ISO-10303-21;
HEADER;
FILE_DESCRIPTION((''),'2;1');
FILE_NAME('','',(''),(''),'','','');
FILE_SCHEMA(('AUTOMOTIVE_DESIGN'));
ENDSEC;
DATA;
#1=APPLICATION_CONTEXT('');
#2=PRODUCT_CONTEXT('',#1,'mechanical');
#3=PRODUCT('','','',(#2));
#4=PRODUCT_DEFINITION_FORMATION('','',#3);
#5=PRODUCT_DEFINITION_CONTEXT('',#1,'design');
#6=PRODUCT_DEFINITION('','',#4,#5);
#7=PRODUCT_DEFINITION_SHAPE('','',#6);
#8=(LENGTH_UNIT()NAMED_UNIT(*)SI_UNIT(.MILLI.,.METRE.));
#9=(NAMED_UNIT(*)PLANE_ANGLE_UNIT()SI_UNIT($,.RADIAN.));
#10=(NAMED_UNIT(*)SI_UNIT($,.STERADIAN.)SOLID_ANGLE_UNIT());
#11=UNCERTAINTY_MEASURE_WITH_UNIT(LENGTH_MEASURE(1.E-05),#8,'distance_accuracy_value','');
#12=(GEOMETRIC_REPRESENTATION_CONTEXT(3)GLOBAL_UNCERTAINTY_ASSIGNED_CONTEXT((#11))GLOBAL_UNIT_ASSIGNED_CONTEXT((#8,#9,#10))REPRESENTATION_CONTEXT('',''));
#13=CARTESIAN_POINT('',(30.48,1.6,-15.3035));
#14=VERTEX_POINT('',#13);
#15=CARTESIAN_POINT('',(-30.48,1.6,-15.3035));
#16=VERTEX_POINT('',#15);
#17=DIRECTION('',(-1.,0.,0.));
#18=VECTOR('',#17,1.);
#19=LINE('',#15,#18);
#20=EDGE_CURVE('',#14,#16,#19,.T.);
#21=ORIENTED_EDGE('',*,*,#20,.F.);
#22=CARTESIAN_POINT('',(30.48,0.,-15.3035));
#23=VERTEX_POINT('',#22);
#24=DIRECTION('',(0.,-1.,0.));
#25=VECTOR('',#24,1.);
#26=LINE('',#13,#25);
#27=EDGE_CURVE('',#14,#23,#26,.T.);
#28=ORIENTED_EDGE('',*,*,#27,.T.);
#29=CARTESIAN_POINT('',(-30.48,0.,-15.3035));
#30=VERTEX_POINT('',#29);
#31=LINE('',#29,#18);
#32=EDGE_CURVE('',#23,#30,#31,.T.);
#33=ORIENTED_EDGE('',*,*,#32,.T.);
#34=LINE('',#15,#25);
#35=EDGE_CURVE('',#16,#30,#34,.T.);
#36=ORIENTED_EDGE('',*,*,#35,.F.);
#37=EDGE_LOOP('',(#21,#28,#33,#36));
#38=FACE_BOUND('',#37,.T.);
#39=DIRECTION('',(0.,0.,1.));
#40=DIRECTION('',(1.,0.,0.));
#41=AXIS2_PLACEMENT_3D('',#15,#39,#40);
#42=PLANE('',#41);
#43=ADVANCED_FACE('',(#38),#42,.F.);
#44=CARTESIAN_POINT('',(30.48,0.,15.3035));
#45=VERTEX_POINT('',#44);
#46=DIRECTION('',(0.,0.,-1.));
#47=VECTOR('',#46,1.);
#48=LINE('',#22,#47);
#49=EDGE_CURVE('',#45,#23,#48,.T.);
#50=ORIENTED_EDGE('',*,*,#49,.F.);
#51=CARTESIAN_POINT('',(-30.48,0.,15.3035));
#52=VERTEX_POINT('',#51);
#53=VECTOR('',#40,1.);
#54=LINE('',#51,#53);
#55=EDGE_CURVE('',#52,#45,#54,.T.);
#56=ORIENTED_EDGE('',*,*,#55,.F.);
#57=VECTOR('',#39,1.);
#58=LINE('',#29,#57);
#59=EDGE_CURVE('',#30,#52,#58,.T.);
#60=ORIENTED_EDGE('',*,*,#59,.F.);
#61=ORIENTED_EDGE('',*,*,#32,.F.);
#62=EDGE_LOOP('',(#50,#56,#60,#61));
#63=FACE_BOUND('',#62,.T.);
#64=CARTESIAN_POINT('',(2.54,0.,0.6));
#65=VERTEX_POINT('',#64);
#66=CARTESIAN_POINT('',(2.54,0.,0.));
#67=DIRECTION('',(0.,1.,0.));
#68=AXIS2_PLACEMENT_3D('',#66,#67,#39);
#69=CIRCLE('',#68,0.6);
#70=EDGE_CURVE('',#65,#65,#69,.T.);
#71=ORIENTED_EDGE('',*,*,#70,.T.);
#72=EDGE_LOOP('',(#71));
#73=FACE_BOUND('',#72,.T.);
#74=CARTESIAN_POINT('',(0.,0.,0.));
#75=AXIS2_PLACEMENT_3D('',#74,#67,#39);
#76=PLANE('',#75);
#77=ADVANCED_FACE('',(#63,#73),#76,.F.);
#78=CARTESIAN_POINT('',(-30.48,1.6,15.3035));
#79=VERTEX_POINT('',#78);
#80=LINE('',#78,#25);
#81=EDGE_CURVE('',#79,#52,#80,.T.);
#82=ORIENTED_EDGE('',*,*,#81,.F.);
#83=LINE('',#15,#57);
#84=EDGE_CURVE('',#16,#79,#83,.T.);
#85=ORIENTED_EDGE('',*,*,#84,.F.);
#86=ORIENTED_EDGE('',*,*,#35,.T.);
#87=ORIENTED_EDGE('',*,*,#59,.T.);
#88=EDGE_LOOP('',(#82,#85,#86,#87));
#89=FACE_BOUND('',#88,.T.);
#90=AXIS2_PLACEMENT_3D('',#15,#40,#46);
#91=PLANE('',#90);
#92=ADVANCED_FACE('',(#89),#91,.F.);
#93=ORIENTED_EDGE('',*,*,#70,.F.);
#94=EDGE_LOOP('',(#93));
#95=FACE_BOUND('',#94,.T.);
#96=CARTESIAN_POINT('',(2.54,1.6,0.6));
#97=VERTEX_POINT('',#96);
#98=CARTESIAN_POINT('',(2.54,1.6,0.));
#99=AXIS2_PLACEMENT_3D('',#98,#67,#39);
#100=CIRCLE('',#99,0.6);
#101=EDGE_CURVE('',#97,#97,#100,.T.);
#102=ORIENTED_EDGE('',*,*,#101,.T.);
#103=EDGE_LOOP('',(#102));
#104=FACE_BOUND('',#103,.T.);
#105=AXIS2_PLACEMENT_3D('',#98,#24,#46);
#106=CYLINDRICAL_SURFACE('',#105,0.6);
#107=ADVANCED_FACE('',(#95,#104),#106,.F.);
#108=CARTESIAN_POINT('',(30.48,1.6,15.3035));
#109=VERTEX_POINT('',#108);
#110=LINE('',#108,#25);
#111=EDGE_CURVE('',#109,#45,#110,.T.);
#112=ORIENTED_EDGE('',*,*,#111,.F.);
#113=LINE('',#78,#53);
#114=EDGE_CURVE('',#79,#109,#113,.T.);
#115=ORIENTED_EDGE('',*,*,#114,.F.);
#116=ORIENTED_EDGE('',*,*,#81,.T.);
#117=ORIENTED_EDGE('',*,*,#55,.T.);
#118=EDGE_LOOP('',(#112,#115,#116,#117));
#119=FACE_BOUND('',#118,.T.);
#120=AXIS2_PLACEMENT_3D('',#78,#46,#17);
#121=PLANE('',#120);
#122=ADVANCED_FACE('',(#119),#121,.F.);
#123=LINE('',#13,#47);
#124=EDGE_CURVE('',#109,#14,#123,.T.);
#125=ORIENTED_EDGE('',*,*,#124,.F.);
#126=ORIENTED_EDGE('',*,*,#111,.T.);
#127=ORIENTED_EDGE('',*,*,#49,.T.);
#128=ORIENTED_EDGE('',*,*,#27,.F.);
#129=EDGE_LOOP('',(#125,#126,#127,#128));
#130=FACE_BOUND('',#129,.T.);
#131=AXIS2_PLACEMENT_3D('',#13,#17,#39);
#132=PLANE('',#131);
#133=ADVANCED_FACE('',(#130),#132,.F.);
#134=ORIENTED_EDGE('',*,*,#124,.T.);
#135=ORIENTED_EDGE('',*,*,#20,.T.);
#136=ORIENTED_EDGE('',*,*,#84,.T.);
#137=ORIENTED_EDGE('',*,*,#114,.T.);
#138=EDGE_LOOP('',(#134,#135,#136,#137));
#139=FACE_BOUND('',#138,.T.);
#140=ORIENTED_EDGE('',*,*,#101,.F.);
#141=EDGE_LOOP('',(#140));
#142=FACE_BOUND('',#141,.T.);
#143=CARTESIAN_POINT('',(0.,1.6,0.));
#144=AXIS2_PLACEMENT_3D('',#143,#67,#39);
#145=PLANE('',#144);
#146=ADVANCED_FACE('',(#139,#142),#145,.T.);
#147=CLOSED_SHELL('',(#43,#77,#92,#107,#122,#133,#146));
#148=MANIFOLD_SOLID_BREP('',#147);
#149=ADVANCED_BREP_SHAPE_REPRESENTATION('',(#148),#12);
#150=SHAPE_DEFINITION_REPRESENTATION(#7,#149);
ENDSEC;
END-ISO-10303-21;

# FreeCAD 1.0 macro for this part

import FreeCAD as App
import Part
import Sketcher

V = App.Vector
Q = App.Units.Quantity

doc = App.newDocument("Part")
body = doc.addObject("PartDesign::Body", "Body")

# Sketch on XZ plane
sketch1 = doc.addObject("Sketcher::SketchObject", "Sketch")
body.addObject(sketch1)
sketch1.AttachmentSupport = (doc.XZ_Plane, [""])
sketch1.MapMode = "FlatFace"
sketch1.addGeometry(Part.LineSegment(V(-30.48, -15.3035, 0), V(-30.48, 15.3035, 0)), False)
sketch1.addGeometry(Part.LineSegment(V(-30.48, 15.3035, 0), V(30.48, 15.3035, 0)), False)
sketch1.addGeometry(Part.LineSegment(V(30.48, 15.3035, 0), V(30.48, -15.3035, 0)), False)
sketch1.addGeometry(Part.LineSegment(V(30.48, -15.3035, 0), V(-30.48, -15.3035, 0)), False)
sketch1.addGeometry(Part.Circle(V(2.54, 0, 0), V(0, 0, 1), 0.6), False)
sketch1.addConstraint(Sketcher.Constraint("Coincident", 0, 2, 1, 1))
sketch1.addConstraint(Sketcher.Constraint("Coincident", 1, 2, 2, 1))
sketch1.addConstraint(Sketcher.Constraint("Coincident", 2, 2, 3, 1))
sketch1.addConstraint(Sketcher.Constraint("Coincident", 3, 2, 0, 1))
sketch1.addConstraint(Sketcher.Constraint("Vertical", 0))
sketch1.addConstraint(Sketcher.Constraint("Horizontal", 1))
sketch1.addConstraint(Sketcher.Constraint("Vertical", 2))
sketch1.addConstraint(Sketcher.Constraint("Horizontal", 3))
sketch1.addConstraint(Sketcher.Constraint("Symmetric", 0, 2, 2, 2, -1, 1))
sketch1.addConstraint(Sketcher.Constraint("PointOnObject", 4, 3, -1))
sketch1.addConstraint(Sketcher.Constraint("Diameter", 4, Q("1.2 mm")))
sketch1.addConstraint(Sketcher.Constraint("DistanceX", 1, 1, 1, 2, Q("60.96 mm")))
sketch1.addConstraint(Sketcher.Constraint("DistanceY", 0, 1, 0, 2, Q("30.607 mm")))
sketch1.addConstraint(Sketcher.Constraint("DistanceX", -1, 1, 4, 3, Q("2.54 mm")))
pad1 = doc.addObject("PartDesign::Pad", "Pad")
body.addObject(pad1)
pad1.Profile = sketch1
pad1.Length = 1.6
pad1.Reversed = True

doc.recompute()
